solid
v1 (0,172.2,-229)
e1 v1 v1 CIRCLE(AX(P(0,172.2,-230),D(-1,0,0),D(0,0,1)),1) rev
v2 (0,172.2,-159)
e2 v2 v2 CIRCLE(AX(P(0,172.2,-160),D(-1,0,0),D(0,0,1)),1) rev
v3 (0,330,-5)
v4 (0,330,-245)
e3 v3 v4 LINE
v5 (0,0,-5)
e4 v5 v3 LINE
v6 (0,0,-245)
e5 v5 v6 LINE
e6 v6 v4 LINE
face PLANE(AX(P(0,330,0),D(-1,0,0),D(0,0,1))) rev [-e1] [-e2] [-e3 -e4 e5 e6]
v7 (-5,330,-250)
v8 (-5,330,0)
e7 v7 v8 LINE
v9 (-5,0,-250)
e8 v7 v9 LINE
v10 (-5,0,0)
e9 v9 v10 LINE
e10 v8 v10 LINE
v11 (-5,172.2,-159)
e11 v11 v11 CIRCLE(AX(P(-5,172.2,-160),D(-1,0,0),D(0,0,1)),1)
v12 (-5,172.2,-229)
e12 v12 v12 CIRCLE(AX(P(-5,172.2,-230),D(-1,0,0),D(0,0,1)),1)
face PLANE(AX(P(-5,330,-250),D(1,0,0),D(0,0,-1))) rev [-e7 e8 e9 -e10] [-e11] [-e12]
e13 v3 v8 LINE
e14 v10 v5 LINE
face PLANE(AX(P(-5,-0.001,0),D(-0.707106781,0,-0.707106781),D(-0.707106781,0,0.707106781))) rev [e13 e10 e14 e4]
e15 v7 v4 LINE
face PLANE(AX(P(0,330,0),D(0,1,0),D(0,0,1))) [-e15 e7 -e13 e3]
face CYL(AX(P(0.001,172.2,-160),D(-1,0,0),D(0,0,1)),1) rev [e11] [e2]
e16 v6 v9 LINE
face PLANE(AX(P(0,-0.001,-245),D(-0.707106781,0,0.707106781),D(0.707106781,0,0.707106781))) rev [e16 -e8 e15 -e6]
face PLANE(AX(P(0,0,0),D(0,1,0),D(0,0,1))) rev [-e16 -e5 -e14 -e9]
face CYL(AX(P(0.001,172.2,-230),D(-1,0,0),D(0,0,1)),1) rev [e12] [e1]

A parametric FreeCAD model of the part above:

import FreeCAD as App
import Part
import Sketcher
Q = App.Units.Quantity


def add_polygon(sketch, points):
    """Adds a closed chain of lines whose ends are joined by coincident constraints."""
    first, n = sketch.GeometryCount, len(points)
    for a, b in zip(points, points[1:] + points[:1]):
        sketch.addGeometry(Part.LineSegment(App.Vector(*a, 0), App.Vector(*b, 0)), False)
    for i in range(n):
        sketch.addConstraint(Sketcher.Constraint("Coincident", first + i, 2, first + (i + 1) % n, 1))

doc = App.newDocument("Part")
body = doc.addObject("PartDesign::Body", "Body")

# Sketch on XZ plane
sketch1 = body.newObject("Sketcher::SketchObject", "Sketch")
sketch1.AttachmentSupport = (doc.getObject("XZ_Plane"), [""])
sketch1.MapMode = "FlatFace"
add_polygon(sketch1, [(-5, -250), (-5, 0), (0, 0), (0, -250)])  # lines 0-3
sketch1.addConstraint([
    Sketcher.Constraint("Vertical", 0),
    Sketcher.Constraint("Horizontal", 1),
    Sketcher.Constraint("Vertical", 2),
    Sketcher.Constraint("Horizontal", 3),
    Sketcher.Constraint("Coincident", 1, 2, -1, 1),
    Sketcher.Constraint("DistanceX", 1, 1, 1, 2, Q("5 mm")),
    Sketcher.Constraint("DistanceY", 0, 1, 0, 2, Q("250 mm")),
])
pad1 = body.newObject("PartDesign::Pad", "Pad")
pad1.Profile = sketch1
pad1.Length = 330
pad1.Reversed = True

# Sketch on XZ plane
sketch2 = body.newObject("Sketcher::SketchObject", "Sketch001")
sketch2.AttachmentSupport = (doc.getObject("XZ_Plane"), [""])
sketch2.MapMode = "FlatFace"
sketch2.AttachmentOffset = App.Placement(App.Vector(0, 0, -330), App.Rotation())
add_polygon(sketch2, [(0, -245), (0, -250), (-5, -250)])  # lines 0-2
sketch2.addConstraint([
    Sketcher.Constraint("Vertical", 0),
    Sketcher.Constraint("Horizontal", 1),
    Sketcher.Constraint("PointOnObject", 0, 2, -2),
    Sketcher.Constraint("Equal", 1, 0),
    Sketcher.Constraint("DistanceX", 1, 2, 1, 1, Q("5 mm")),
    Sketcher.Constraint("DistanceY", 0, 2, -1, 1, Q("250 mm")),
])
pocket1 = body.newObject("PartDesign::Pocket", "Pocket")
pocket1.Profile = sketch2
pocket1.Type = "UpToFirst"
pocket1.Reversed = True

# Sketch on XZ plane
sketch3 = body.newObject("Sketcher::SketchObject", "Sketch002")
sketch3.AttachmentSupport = (doc.getObject("XZ_Plane"), [""])
sketch3.MapMode = "FlatFace"
sketch3.AttachmentOffset = App.Placement(App.Vector(0, 0, -330), App.Rotation())
add_polygon(sketch3, [(0, -5), (-5, 0), (0, 0)])  # lines 0-2
sketch3.addConstraint([
    Sketcher.Constraint("Horizontal", 1),
    Sketcher.Constraint("Vertical", 2),
    Sketcher.Constraint("Coincident", 1, 2, -1, 1),
    Sketcher.Constraint("Equal", 1, 2),
    Sketcher.Constraint("DistanceX", 1, 1, 1, 2, Q("5 mm")),
])
pocket2 = body.newObject("PartDesign::Pocket", "Pocket001")
pocket2.Profile = sketch3
pocket2.Type = "UpToFirst"
pocket2.Reversed = True

# Sketch on YZ plane
sketch4 = body.newObject("Sketcher::SketchObject", "Sketch003")
sketch4.AttachmentSupport = (doc.getObject("YZ_Plane"), [""])
sketch4.MapMode = "FlatFace"
sketch4.AttachmentOffset = App.Placement(App.Vector(0, 0, -5), App.Rotation())
sketch4.addGeometry(Part.Circle(App.Vector(172.2, -230, 0), App.Vector(0, 0, 1), 1), False)
sketch4.addConstraint([
    Sketcher.Constraint("Diameter", 0, Q("2 mm")),
    Sketcher.Constraint("DistanceY", 0, 3, -1, 1, Q("230 mm")),
    Sketcher.Constraint("DistanceX", -1, 1, 0, 3, Q("172.2 mm")),
])
pocket3 = body.newObject("PartDesign::Pocket", "Pocket002")
pocket3.Profile = sketch4
pocket3.Type = "UpToFirst"
pocket3.Reversed = True

# Sketch on YZ plane
sketch5 = body.newObject("Sketcher::SketchObject", "Sketch004")
sketch5.AttachmentSupport = (doc.getObject("YZ_Plane"), [""])
sketch5.MapMode = "FlatFace"
sketch5.AttachmentOffset = App.Placement(App.Vector(0, 0, -5), App.Rotation())
sketch5.addGeometry(Part.Circle(App.Vector(172.2, -160, 0), App.Vector(0, 0, 1), 1), False)
sketch5.addConstraint([
    Sketcher.Constraint("Diameter", 0, Q("2 mm")),
    Sketcher.Constraint("DistanceY", 0, 3, -1, 1, Q("160 mm")),
    Sketcher.Constraint("DistanceX", -1, 1, 0, 3, Q("172.2 mm")),
])
pocket4 = body.newObject("PartDesign::Pocket", "Pocket003")
pocket4.Profile = sketch5
pocket4.Type = "UpToFirst"
pocket4.Reversed = True

doc.recompute()
